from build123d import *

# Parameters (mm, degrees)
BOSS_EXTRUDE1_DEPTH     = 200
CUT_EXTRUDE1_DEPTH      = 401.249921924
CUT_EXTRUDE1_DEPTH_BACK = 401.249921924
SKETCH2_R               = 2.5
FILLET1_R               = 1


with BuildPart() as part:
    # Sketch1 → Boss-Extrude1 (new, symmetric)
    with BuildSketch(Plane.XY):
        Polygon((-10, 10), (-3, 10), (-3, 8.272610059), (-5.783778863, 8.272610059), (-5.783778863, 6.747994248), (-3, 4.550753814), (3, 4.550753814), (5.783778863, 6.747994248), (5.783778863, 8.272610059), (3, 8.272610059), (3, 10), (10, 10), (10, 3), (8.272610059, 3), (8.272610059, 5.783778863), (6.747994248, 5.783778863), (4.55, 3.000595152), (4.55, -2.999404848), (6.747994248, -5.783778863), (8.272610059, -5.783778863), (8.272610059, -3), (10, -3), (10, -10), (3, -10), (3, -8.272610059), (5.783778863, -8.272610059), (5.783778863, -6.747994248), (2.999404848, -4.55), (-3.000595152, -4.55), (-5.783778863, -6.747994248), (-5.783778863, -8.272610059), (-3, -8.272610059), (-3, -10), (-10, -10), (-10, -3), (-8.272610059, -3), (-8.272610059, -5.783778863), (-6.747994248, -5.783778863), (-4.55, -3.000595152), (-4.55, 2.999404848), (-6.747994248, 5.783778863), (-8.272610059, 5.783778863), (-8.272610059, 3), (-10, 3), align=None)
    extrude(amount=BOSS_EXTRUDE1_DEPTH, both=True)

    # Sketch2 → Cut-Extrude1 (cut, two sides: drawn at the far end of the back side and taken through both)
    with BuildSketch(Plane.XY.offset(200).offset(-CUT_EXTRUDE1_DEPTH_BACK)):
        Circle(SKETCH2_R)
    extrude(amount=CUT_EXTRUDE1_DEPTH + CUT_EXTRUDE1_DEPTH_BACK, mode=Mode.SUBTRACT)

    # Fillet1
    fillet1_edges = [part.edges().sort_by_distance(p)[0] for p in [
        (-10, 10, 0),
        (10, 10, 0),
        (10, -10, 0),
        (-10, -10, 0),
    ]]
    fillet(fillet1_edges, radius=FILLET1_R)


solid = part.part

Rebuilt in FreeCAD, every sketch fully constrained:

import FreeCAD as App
import Part
import Sketcher
from FreeCAD import Vector


def edges_at(feature, points):
    """Names of the edges that pass closest to the given points."""
    edges = feature.Shape.Edges
    near = lambda p: min(range(len(edges)), key=lambda i: edges[i].distToShape(Part.Vertex(*p))[0])
    return sorted({f"Edge{near(p) + 1}" for p in points})


def add_polygon(sketch, points):
    """Adds a closed chain of lines whose ends are joined by coincident constraints."""
    first, n = sketch.GeometryCount, len(points)
    for a, b in zip(points, points[1:] + points[:1]):
        sketch.addGeometry(Part.LineSegment(App.Vector(*a, 0), App.Vector(*b, 0)), False)
    for i in range(n):
        sketch.addConstraint(Sketcher.Constraint("Coincident", first + i, 2, first + (i + 1) % n, 1))

doc = App.newDocument("Part")
body = doc.addObject("PartDesign::Body", "Body")

sketch1 = doc.addObject("Sketcher::SketchObject", "Sketch")
body.addObject(sketch1)
sketch1.AttachmentSupport = (doc.XY_Plane, [""])
sketch1.MapMode = "FlatFace"
add_polygon(sketch1, [(-3, 10), (-10, 10), (-10, 3), (-8.3, 3), (-8.3, 5.8), (-6.7, 5.8), (-4.5, 3), (-4.5, -3), (-6.7, -5.8), (-8.3, -5.8), (-8.3, -3), (-10, -3), (-10, -10), (-3, -10), (-3, -8.3), (-5.8, -8.3), (-5.8, -6.7), (-3, -4.5), (3, -4.5), (5.8, -6.7), (5.8, -8.3), (3, -8.3), (3, -10), (10, -10), (10, -3), (8.3, -3), (8.3, -5.8), (6.7, -5.8), (4.5, -3), (4.5, 3), (6.7, 5.8), (8.3, 5.8), (8.3, 3), (10, 3), (10, 10), (3, 10), (3, 8.3), (5.8, 8.3), (5.8, 6.7), (3, 4.6), (-3, 4.6), (-5.8, 6.7), (-5.8, 8.3), (-3, 8.3)])
sketch1.addConstraint([
    Sketcher.Constraint("Horizontal", 0),
    Sketcher.Constraint("Vertical", 1),
    Sketcher.Constraint("Horizontal", 2),
    Sketcher.Constraint("Vertical", 3),
    Sketcher.Constraint("Horizontal", 4),
    Sketcher.Constraint("Vertical", 6),
    Sketcher.Constraint("Horizontal", 8),
    Sketcher.Constraint("Vertical", 9),
    Sketcher.Constraint("Horizontal", 10),
    Sketcher.Constraint("Vertical", 11),
    Sketcher.Constraint("Horizontal", 12),
    Sketcher.Constraint("Vertical", 13),
    Sketcher.Constraint("Horizontal", 14),
    Sketcher.Constraint("Vertical", 15),
    Sketcher.Constraint("Horizontal", 17),
    Sketcher.Constraint("Vertical", 19),
    Sketcher.Constraint("Horizontal", 20),
    Sketcher.Constraint("Vertical", 21),
    Sketcher.Constraint("Horizontal", 22),
    Sketcher.Constraint("Vertical", 23),
    Sketcher.Constraint("Horizontal", 24),
    Sketcher.Constraint("Vertical", 25),
    Sketcher.Constraint("Horizontal", 26),
    Sketcher.Constraint("Vertical", 28),
    Sketcher.Constraint("Horizontal", 30),
    Sketcher.Constraint("Vertical", 31),
    Sketcher.Constraint("Horizontal", 32),
    Sketcher.Constraint("Vertical", 33),
    Sketcher.Constraint("Horizontal", 34),
    Sketcher.Constraint("Vertical", 35),
    Sketcher.Constraint("Horizontal", 36),
    Sketcher.Constraint("Vertical", 37),
    Sketcher.Constraint("Horizontal", 39),
    Sketcher.Constraint("Vertical", 41),
    Sketcher.Constraint("Horizontal", 42),
    Sketcher.Constraint("Vertical", 43),
    Sketcher.Constraint("Symmetric", 0, 2, 22, 2, -1, 1),
    Sketcher.Constraint("Symmetric", 2, 2, 24, 2, -1, 1),
    Sketcher.Constraint("Symmetric", 4, 2, 26, 2, -1, 1),
    Sketcher.Constraint("Symmetric", 5, 2, 27, 2, -1, 1),
    Sketcher.Constraint("Symmetric", 7, 2, 29, 2, -1, 1),
    Sketcher.Constraint("Symmetric", 9, 2, 31, 2, -1, 1),
    Sketcher.Constraint("Symmetric", 11, 2, 33, 2, -1, 1),
    Sketcher.Constraint("Symmetric", 13, 2, 35, 2, -1, 1),
    Sketcher.Constraint("Symmetric", 15, 2, 37, 2, -1, 1),
    Sketcher.Constraint("Symmetric", 18, 2, 40, 2, -1, 1),
    Sketcher.Constraint("Symmetric", 20, 2, 42, 2, -1, 1),
    Sketcher.Constraint("Symmetric", 15, 2, 18, 2, -2),
    Sketcher.Constraint("Symmetric", 13, 2, 20, 2, -2),
    Sketcher.Constraint("Symmetric", 11, 2, 22, 2, -2),
    Sketcher.Constraint("Symmetric", 9, 2, 24, 2, -2),
    Sketcher.Constraint("Symmetric", 7, 2, 26, 2, -2),
    Sketcher.Constraint("Parallel", 7, 29),
    Sketcher.Constraint("Vertical", 35, 2, 38, 2),
    Sketcher.Constraint("Vertical", 13, 2, 39, 2),
    Sketcher.Constraint("Equal", 17, 39),
    Sketcher.Constraint("Equal", 34, 1),
    Sketcher.Constraint("Equal", 42, 3),
    Sketcher.Constraint("Equal", 39, 6),
    Sketcher.Constraint("Equal", 32, 13),
    Sketcher.Constraint("Equal", 30, 15),
    Sketcher.Constraint("Equal", 7, 16),
    Sketcher.Constraint("Equal", 5, 18),
    Sketcher.Constraint("Equal", 29, 38),
    Sketcher.Constraint("DistanceX", 0, 2, 0, 1, 7.0),
    Sketcher.Constraint("DistanceX", 17, 1, 17, 2, 6.0),
    Sketcher.Constraint("DistanceY", -1, 1, 0, 2, 10.0),
    Sketcher.Constraint("DistanceX", 5, 2, -1, 1, 4.55),
    Sketcher.Constraint("DistanceX", 2, 1, 2, 2, 1.72739),
    Sketcher.Constraint("DistanceX", 14, 2, 14, 1, 2.783779),
    Sketcher.Constraint("DistanceY", 15, 2, 6, 2, 3.747399),
    Sketcher.Constraint("Distance", 5, 3.547382),
])
pad1 = doc.addObject("PartDesign::Pad", "Pad")
body.addObject(pad1)
pad1.Profile = sketch1
pad1.Length = 400
pad1.Midplane = True

sketch2 = doc.addObject("Sketcher::SketchObject", "Sketch001")
body.addObject(sketch2)
sketch2.AttachmentSupport = (doc.XY_Plane, [""])
sketch2.MapMode = "FlatFace"
sketch2.AttachmentOffset = App.Placement(Vector(0, 0, 200), App.Rotation())
sketch2.addGeometry(Part.Circle(Vector(0, 0, 0), Vector(0, 0, 1), 2.5), False)
sketch2.addConstraint([
    Sketcher.Constraint("Coincident", 0, 3, -1, 1),
    Sketcher.Constraint("Diameter", 0, 5.0),
])
pocket1 = doc.addObject("PartDesign::Pocket", "Pocket")
body.addObject(pocket1)
pocket1.Profile = sketch2
pocket1.Type = "ThroughAll"
pocket1.Midplane = True
doc.recompute()

fillet = doc.addObject("PartDesign::Fillet", "Fillet")
body.addObject(fillet)
fillet.Base = (pocket1, edges_at(pocket1, [
    (-10, 10, 0),
    (10, 10, 0),
    (10, -10, 0),
    (-10, -10, 0),
]))
fillet.Radius = 1

doc.recompute()
